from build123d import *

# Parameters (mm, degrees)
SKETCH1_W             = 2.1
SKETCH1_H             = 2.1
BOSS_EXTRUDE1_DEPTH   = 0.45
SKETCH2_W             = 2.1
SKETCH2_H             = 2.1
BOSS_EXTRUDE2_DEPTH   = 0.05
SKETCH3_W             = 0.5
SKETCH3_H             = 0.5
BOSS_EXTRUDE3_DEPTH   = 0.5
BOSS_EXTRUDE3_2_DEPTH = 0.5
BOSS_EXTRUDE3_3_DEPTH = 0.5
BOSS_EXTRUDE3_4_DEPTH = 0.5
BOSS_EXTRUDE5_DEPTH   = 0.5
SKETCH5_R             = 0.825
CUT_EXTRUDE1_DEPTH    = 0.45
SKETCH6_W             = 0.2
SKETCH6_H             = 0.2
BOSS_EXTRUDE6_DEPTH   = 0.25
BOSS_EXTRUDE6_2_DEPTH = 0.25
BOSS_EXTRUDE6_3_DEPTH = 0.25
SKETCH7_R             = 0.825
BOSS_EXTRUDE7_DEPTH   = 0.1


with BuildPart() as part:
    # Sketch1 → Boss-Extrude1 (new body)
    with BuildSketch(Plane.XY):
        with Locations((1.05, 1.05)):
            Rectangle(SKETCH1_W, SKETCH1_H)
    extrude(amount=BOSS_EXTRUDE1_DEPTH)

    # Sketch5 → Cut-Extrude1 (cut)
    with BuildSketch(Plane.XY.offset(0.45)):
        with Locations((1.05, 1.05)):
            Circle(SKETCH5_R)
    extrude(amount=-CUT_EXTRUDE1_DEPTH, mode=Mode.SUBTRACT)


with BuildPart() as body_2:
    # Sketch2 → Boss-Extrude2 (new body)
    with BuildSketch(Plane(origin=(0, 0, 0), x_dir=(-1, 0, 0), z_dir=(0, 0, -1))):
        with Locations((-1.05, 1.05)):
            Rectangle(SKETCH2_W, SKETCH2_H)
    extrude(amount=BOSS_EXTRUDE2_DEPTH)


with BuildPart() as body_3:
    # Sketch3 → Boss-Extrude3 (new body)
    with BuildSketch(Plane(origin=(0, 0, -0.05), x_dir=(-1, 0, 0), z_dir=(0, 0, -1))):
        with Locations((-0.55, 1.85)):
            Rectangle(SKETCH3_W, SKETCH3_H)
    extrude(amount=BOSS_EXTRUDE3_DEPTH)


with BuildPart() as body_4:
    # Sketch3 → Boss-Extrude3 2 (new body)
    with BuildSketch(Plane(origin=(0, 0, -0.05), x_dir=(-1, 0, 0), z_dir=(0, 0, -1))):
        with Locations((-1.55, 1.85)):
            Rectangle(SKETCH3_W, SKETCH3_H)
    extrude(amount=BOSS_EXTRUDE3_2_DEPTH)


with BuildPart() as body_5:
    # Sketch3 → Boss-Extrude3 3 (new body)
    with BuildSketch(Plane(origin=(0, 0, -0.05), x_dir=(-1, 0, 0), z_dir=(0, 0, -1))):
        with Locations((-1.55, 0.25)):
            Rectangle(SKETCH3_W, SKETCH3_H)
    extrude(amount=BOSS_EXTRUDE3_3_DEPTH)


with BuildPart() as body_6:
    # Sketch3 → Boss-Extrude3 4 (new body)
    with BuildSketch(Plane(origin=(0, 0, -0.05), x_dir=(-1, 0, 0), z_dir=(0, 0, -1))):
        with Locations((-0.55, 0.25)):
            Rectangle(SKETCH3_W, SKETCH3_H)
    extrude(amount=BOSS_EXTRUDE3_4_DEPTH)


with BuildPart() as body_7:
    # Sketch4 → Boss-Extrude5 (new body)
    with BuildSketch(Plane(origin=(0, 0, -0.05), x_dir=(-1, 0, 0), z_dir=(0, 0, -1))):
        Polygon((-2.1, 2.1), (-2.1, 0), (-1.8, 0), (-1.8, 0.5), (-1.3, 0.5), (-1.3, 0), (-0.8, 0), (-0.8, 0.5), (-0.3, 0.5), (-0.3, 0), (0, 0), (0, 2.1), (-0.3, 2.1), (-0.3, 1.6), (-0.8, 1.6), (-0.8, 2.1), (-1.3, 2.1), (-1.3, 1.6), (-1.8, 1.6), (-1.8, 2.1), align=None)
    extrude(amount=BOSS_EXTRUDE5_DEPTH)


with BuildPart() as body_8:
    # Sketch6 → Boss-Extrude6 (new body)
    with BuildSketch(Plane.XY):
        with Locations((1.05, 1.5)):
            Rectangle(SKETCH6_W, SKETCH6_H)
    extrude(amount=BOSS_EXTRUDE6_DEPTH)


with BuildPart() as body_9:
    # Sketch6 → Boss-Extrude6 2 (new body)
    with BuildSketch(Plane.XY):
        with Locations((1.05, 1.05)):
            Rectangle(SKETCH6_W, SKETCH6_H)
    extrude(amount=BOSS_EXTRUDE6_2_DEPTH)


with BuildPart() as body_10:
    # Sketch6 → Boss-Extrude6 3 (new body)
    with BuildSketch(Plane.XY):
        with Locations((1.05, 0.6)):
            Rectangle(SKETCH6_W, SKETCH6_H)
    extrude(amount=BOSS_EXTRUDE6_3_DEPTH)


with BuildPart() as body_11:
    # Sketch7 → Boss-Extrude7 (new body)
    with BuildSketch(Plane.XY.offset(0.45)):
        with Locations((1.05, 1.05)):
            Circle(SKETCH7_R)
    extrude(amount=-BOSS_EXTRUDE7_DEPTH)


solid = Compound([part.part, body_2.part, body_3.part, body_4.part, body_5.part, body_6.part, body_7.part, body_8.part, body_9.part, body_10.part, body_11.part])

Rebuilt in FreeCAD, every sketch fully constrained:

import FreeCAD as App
import Part
import Sketcher


def add_polygon(sketch, points):
    """Adds a closed chain of lines whose ends are joined by coincident constraints."""
    first, n = sketch.GeometryCount, len(points)
    for a, b in zip(points, points[1:] + points[:1]):
        sketch.addGeometry(Part.LineSegment(App.Vector(*a, 0), App.Vector(*b, 0)), False)
    for i in range(n):
        sketch.addConstraint(Sketcher.Constraint("Coincident", first + i, 2, first + (i + 1) % n, 1))

doc = App.newDocument("Part")
body = doc.addObject("PartDesign::Body", "Body")

sketch1 = doc.addObject("Sketcher::SketchObject", "Sketch")
body.addObject(sketch1)
sketch1.AttachmentSupport = (doc.XY_Plane, [""])
sketch1.MapMode = "FlatFace"
add_polygon(sketch1, [(0, 2.1), (0, 0), (2.1, 0), (2.1, 2.1)])
sketch1.addConstraint([
    Sketcher.Constraint("Vertical", 0),
    Sketcher.Constraint("Horizontal", 1),
    Sketcher.Constraint("Vertical", 2),
    Sketcher.Constraint("Horizontal", 3),
    Sketcher.Constraint("Coincident", 0, 2, -1, 1),
    Sketcher.Constraint("Equal", 3, 0),
    Sketcher.Constraint("DistanceX", 1, 1, 1, 2, 2.1),
])
pad1 = doc.addObject("PartDesign::Pad", "Pad")
body.addObject(pad1)
pad1.Profile = sketch1
pad1.Length = 0.45

sketch2 = doc.addObject("Sketcher::SketchObject", "Sketch001")
body.addObject(sketch2)
sketch2.AttachmentSupport = (doc.XY_Plane, [""])
sketch2.MapMode = "FlatFace"
sketch2.AttachmentOffset = App.Placement(App.Vector(0, 0, 0.45), App.Rotation())
sketch2.addGeometry(Part.Circle(App.Vector(1.05, 1.05, 0), App.Vector(0, 0, 1), 0.825), False)
sketch2.addConstraint([
    Sketcher.Constraint("Diameter", 0, 1.65),
    Sketcher.Constraint("DistanceX", -1, 1, 0, 3, 1.05),
    Sketcher.Constraint("DistanceY", -1, 1, 0, 3, 1.05),
])
pocket1 = doc.addObject("PartDesign::Pocket", "Pocket")
body.addObject(pocket1)
pocket1.Profile = sketch2
pocket1.Length = 0.45
body2 = doc.addObject("PartDesign::Body", "Body001")

sketch3 = doc.addObject("Sketcher::SketchObject", "Sketch002")
body2.addObject(sketch3)
sketch3.AttachmentSupport = (doc.getObject("XY_Plane001"), [""])
sketch3.MapMode = "FlatFace"
add_polygon(sketch3, [(2.1, 2.1), (2.1, 0), (0, 0), (0, 2.1)])
sketch3.addConstraint([
    Sketcher.Constraint("Vertical", 0),
    Sketcher.Constraint("Horizontal", 1),
    Sketcher.Constraint("Vertical", 2),
    Sketcher.Constraint("Horizontal", 3),
    Sketcher.Constraint("Coincident", 1, 2, -1, 1),
    Sketcher.Constraint("Equal", 3, 0),
    Sketcher.Constraint("DistanceX", 1, 2, 1, 1, 2.1),
])
pad2 = doc.addObject("PartDesign::Pad", "Pad001")
body2.addObject(pad2)
pad2.Profile = sketch3
pad2.Length = 0.05
pad2.Reversed = True
body3 = doc.addObject("PartDesign::Body", "Body002")

sketch4 = doc.addObject("Sketcher::SketchObject", "Sketch003")
body3.addObject(sketch4)
sketch4.AttachmentSupport = (doc.getObject("XY_Plane002"), [""])
sketch4.MapMode = "FlatFace"
sketch4.AttachmentOffset = App.Placement(App.Vector(0, 0, -0.05), App.Rotation())
add_polygon(sketch4, [(0.8, 2.1), (0.8, 1.6), (0.3, 1.6), (0.3, 2.1)])
sketch4.addConstraint([
    Sketcher.Constraint("Vertical", 0),
    Sketcher.Constraint("Horizontal", 1),
    Sketcher.Constraint("Vertical", 2),
    Sketcher.Constraint("Horizontal", 3),
    Sketcher.Constraint("Equal", 3, 0),
    Sketcher.Constraint("DistanceX", 1, 2, 1, 1, 0.5),
    Sketcher.Constraint("DistanceX", -1, 1, 0, 2, 0.8),
    Sketcher.Constraint("DistanceY", -1, 1, 0, 2, 1.6),
])
pad3 = doc.addObject("PartDesign::Pad", "Pad002")
body3.addObject(pad3)
pad3.Profile = sketch4
pad3.Length = 0.5
pad3.Reversed = True
body4 = doc.addObject("PartDesign::Body", "Body003")

sketch5 = doc.addObject("Sketcher::SketchObject", "Sketch004")
body4.addObject(sketch5)
sketch5.AttachmentSupport = (doc.getObject("XY_Plane003"), [""])
sketch5.MapMode = "FlatFace"
sketch5.AttachmentOffset = App.Placement(App.Vector(0, 0, -0.05), App.Rotation())
add_polygon(sketch5, [(1.8, 2.1), (1.8, 1.6), (1.3, 1.6), (1.3, 2.1)])
sketch5.addConstraint([
    Sketcher.Constraint("Vertical", 0),
    Sketcher.Constraint("Horizontal", 1),
    Sketcher.Constraint("Vertical", 2),
    Sketcher.Constraint("Horizontal", 3),
    Sketcher.Constraint("Equal", 3, 0),
    Sketcher.Constraint("DistanceX", 1, 2, 1, 1, 0.5),
    Sketcher.Constraint("DistanceX", -1, 1, 0, 2, 1.8),
    Sketcher.Constraint("DistanceY", -1, 1, 0, 2, 1.6),
])
pad4 = doc.addObject("PartDesign::Pad", "Pad003")
body4.addObject(pad4)
pad4.Profile = sketch5
pad4.Length = 0.5
pad4.Reversed = True
body5 = doc.addObject("PartDesign::Body", "Body004")

sketch6 = doc.addObject("Sketcher::SketchObject", "Sketch005")
body5.addObject(sketch6)
sketch6.AttachmentSupport = (doc.getObject("XY_Plane004"), [""])
sketch6.MapMode = "FlatFace"
sketch6.AttachmentOffset = App.Placement(App.Vector(0, 0, -0.05), App.Rotation())
add_polygon(sketch6, [(1.8, 0.5), (1.8, 0), (1.3, 0), (1.3, 0.5)])
sketch6.addConstraint([
    Sketcher.Constraint("Vertical", 0),
    Sketcher.Constraint("Horizontal", 1),
    Sketcher.Constraint("Vertical", 2),
    Sketcher.Constraint("Horizontal", 3),
    Sketcher.Constraint("PointOnObject", 0, 2, -1),
    Sketcher.Constraint("Equal", 3, 0),
    Sketcher.Constraint("DistanceX", 1, 2, 1, 1, 0.5),
    Sketcher.Constraint("DistanceX", -1, 1, 0, 2, 1.8),
])
pad5 = doc.addObject("PartDesign::Pad", "Pad004")
body5.addObject(pad5)
pad5.Profile = sketch6
pad5.Length = 0.5
pad5.Reversed = True
body6 = doc.addObject("PartDesign::Body", "Body005")

sketch7 = doc.addObject("Sketcher::SketchObject", "Sketch006")
body6.addObject(sketch7)
sketch7.AttachmentSupport = (doc.getObject("XY_Plane005"), [""])
sketch7.MapMode = "FlatFace"
sketch7.AttachmentOffset = App.Placement(App.Vector(0, 0, -0.05), App.Rotation())
add_polygon(sketch7, [(0.8, 0.5), (0.8, 0), (0.3, 0), (0.3, 0.5)])
sketch7.addConstraint([
    Sketcher.Constraint("Vertical", 0),
    Sketcher.Constraint("Horizontal", 1),
    Sketcher.Constraint("Vertical", 2),
    Sketcher.Constraint("Horizontal", 3),
    Sketcher.Constraint("PointOnObject", 0, 2, -1),
    Sketcher.Constraint("Equal", 3, 0),
    Sketcher.Constraint("DistanceX", 1, 2, 1, 1, 0.5),
    Sketcher.Constraint("DistanceX", -1, 1, 0, 2, 0.8),
])
pad6 = doc.addObject("PartDesign::Pad", "Pad005")
body6.addObject(pad6)
pad6.Profile = sketch7
pad6.Length = 0.5
pad6.Reversed = True
body7 = doc.addObject("PartDesign::Body", "Body006")

sketch8 = doc.addObject("Sketcher::SketchObject", "Sketch007")
body7.addObject(sketch8)
sketch8.AttachmentSupport = (doc.getObject("XY_Plane006"), [""])
sketch8.MapMode = "FlatFace"
sketch8.AttachmentOffset = App.Placement(App.Vector(0, 0, -0.05), App.Rotation())
add_polygon(sketch8, [(2.1, 2.1), (2.1, 0), (1.8, 0), (1.8, 0.5), (1.3, 0.5), (1.3, 0), (0.8, 0), (0.8, 0.5), (0.3, 0.5), (0.3, 0), (0, 0), (0, 2.1), (0.3, 2.1), (0.3, 1.6), (0.8, 1.6), (0.8, 2.1), (1.3, 2.1), (1.3, 1.6), (1.8, 1.6), (1.8, 2.1)])
sketch8.addConstraint([
    Sketcher.Constraint("Vertical", 0),
    Sketcher.Constraint("Horizontal", 1),
    Sketcher.Constraint("Vertical", 2),
    Sketcher.Constraint("Horizontal", 3),
    Sketcher.Constraint("Vertical", 4),
    Sketcher.Constraint("Horizontal", 5),
    Sketcher.Constraint("Vertical", 6),
    Sketcher.Constraint("Horizontal", 7),
    Sketcher.Constraint("Vertical", 8),
    Sketcher.Constraint("Horizontal", 9),
    Sketcher.Constraint("Vertical", 10),
    Sketcher.Constraint("Horizontal", 11),
    Sketcher.Constraint("Vertical", 12),
    Sketcher.Constraint("Horizontal", 13),
    Sketcher.Constraint("Vertical", 14),
    Sketcher.Constraint("Horizontal", 15),
    Sketcher.Constraint("Vertical", 16),
    Sketcher.Constraint("Horizontal", 17),
    Sketcher.Constraint("Vertical", 18),
    Sketcher.Constraint("Horizontal", 19),
    Sketcher.Constraint("Coincident", 9, 2, -1, 1),
    Sketcher.Constraint("PointOnObject", 0, 2, -1),
    Sketcher.Constraint("PointOnObject", 4, 2, -1),
    Sketcher.Constraint("Horizontal", 3, 2, 6, 2),
    Sketcher.Constraint("Horizontal", 11, 2, 14, 2),
    Sketcher.Constraint("Horizontal", 13, 2, 16, 2),
    Sketcher.Constraint("Horizontal", 15, 2, 18, 2),
    Sketcher.Constraint("Vertical", 8, 2, 11, 2),
    Sketcher.Constraint("Vertical", 6, 2, 13, 2),
    Sketcher.Constraint("Vertical", 4, 2, 15, 2),
    Sketcher.Constraint("Vertical", 2, 2, 17, 2),
    Sketcher.Constraint("Equal", 3, 5),
    Sketcher.Constraint("Equal", 5, 7),
    Sketcher.Constraint("Equal", 1, 9),
    Sketcher.Constraint("Equal", 17, 2),
    Sketcher.Constraint("Equal", 8, 12),
    Sketcher.Constraint("DistanceX", 1, 2, 1, 1, 0.3),
    Sketcher.Constraint("DistanceX", 3, 2, 3, 1, 0.5),
    Sketcher.Constraint("DistanceY", 0, 2, 0, 1, 2.1),
])
pad7 = doc.addObject("PartDesign::Pad", "Pad006")
body7.addObject(pad7)
pad7.Profile = sketch8
pad7.Length = 0.5
pad7.Reversed = True
body8 = doc.addObject("PartDesign::Body", "Body007")

sketch9 = doc.addObject("Sketcher::SketchObject", "Sketch008")
body8.addObject(sketch9)
sketch9.AttachmentSupport = (doc.getObject("XY_Plane007"), [""])
sketch9.MapMode = "FlatFace"
add_polygon(sketch9, [(0.95, 1.6), (0.95, 1.4), (1.15, 1.4), (1.15, 1.6)])
sketch9.addConstraint([
    Sketcher.Constraint("Vertical", 0),
    Sketcher.Constraint("Horizontal", 1),
    Sketcher.Constraint("Vertical", 2),
    Sketcher.Constraint("Horizontal", 3),
    Sketcher.Constraint("Equal", 3, 0),
    Sketcher.Constraint("DistanceX", 1, 1, 1, 2, 0.2),
    Sketcher.Constraint("DistanceY", -1, 1, 0, 2, 1.4),
    Sketcher.Constraint("DistanceX", -1, 1, 0, 2, 0.95),
])
pad8 = doc.addObject("PartDesign::Pad", "Pad007")
body8.addObject(pad8)
pad8.Profile = sketch9
pad8.Length = 0.25
body9 = doc.addObject("PartDesign::Body", "Body008")

sketch10 = doc.addObject("Sketcher::SketchObject", "Sketch009")
body9.addObject(sketch10)
sketch10.AttachmentSupport = (doc.getObject("XY_Plane008"), [""])
sketch10.MapMode = "FlatFace"
add_polygon(sketch10, [(0.95, 1.15), (0.95, 0.95), (1.15, 0.95), (1.15, 1.15)])
sketch10.addConstraint([
    Sketcher.Constraint("Vertical", 0),
    Sketcher.Constraint("Horizontal", 1),
    Sketcher.Constraint("Vertical", 2),
    Sketcher.Constraint("Horizontal", 3),
    Sketcher.Constraint("Equal", 3, 0),
    Sketcher.Constraint("DistanceX", 1, 1, 1, 2, 0.2),
    Sketcher.Constraint("DistanceX", -1, 1, 0, 2, 0.95),
    Sketcher.Constraint("DistanceY", -1, 1, 0, 2, 0.95),
])
pad9 = doc.addObject("PartDesign::Pad", "Pad008")
body9.addObject(pad9)
pad9.Profile = sketch10
pad9.Length = 0.25
body10 = doc.addObject("PartDesign::Body", "Body009")

sketch11 = doc.addObject("Sketcher::SketchObject", "Sketch010")
body10.addObject(sketch11)
sketch11.AttachmentSupport = (doc.getObject("XY_Plane009"), [""])
sketch11.MapMode = "FlatFace"
add_polygon(sketch11, [(0.95, 0.7), (0.95, 0.5), (1.15, 0.5), (1.15, 0.7)])
sketch11.addConstraint([
    Sketcher.Constraint("Vertical", 0),
    Sketcher.Constraint("Horizontal", 1),
    Sketcher.Constraint("Vertical", 2),
    Sketcher.Constraint("Horizontal", 3),
    Sketcher.Constraint("Equal", 3, 0),
    Sketcher.Constraint("DistanceX", 1, 1, 1, 2, 0.2),
    Sketcher.Constraint("DistanceY", -1, 1, 0, 2, 0.5),
    Sketcher.Constraint("DistanceX", -1, 1, 0, 2, 0.95),
])
pad10 = doc.addObject("PartDesign::Pad", "Pad009")
body10.addObject(pad10)
pad10.Profile = sketch11
pad10.Length = 0.25
body11 = doc.addObject("PartDesign::Body", "Body010")

sketch12 = doc.addObject("Sketcher::SketchObject", "Sketch011")
body11.addObject(sketch12)
sketch12.AttachmentSupport = (doc.getObject("XY_Plane010"), [""])
sketch12.MapMode = "FlatFace"
sketch12.AttachmentOffset = App.Placement(App.Vector(0, 0, 0.45), App.Rotation())
sketch12.addGeometry(Part.Circle(App.Vector(1.05, 1.05, 0), App.Vector(0, 0, 1), 0.825), False)
sketch12.addConstraint([
    Sketcher.Constraint("Diameter", 0, 1.65),
    Sketcher.Constraint("DistanceX", -1, 1, 0, 3, 1.05),
    Sketcher.Constraint("DistanceY", -1, 1, 0, 3, 1.05),
])
pad11 = doc.addObject("PartDesign::Pad", "Pad010")
body11.addObject(pad11)
pad11.Profile = sketch12
pad11.Length = 0.1
pad11.Reversed = True

doc.recompute()
